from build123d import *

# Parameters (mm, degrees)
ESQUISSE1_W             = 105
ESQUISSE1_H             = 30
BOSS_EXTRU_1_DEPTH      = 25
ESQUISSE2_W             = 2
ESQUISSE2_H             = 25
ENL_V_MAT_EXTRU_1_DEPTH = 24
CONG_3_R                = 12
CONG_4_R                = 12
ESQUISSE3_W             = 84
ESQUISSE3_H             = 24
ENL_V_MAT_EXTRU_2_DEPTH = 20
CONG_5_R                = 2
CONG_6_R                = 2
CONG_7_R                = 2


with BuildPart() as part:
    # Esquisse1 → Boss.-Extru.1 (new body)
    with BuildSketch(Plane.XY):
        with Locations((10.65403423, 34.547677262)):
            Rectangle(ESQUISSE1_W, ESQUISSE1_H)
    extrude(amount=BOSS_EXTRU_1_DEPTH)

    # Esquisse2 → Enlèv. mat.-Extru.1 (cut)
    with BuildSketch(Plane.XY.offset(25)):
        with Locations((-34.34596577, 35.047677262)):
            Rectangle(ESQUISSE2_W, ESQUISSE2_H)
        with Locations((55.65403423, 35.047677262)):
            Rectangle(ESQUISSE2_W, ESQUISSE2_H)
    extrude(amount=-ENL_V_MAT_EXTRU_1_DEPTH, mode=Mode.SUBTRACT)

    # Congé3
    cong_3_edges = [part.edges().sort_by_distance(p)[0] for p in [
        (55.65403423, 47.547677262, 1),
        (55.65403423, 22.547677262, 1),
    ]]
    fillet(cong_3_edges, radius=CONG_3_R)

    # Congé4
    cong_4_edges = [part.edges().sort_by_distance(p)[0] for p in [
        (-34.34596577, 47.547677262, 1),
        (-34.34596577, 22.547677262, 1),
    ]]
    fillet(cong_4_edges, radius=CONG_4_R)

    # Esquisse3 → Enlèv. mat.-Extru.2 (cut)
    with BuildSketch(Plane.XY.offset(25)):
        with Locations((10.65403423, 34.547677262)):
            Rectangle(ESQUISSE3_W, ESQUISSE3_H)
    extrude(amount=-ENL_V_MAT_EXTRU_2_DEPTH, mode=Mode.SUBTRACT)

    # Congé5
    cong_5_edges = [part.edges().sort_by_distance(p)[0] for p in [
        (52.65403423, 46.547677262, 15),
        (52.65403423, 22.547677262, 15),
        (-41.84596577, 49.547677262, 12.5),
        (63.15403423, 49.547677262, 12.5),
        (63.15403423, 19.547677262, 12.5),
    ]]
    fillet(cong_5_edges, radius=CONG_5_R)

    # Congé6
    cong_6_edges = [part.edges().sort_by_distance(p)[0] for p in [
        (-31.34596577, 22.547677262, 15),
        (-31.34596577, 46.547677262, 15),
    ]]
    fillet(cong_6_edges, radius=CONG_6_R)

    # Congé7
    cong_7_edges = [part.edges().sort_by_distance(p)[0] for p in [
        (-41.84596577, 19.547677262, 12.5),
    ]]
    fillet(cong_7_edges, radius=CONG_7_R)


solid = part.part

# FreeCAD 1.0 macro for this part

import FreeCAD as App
import Part
import Sketcher
Q = App.Units.Quantity


def edges_at(feature, points):
    """Names of the edges that pass closest to the given points."""
    edges = feature.Shape.Edges
    near = lambda p: min(range(len(edges)), key=lambda i: edges[i].distToShape(Part.Vertex(*p))[0])
    return sorted({f"Edge{near(p) + 1}" for p in points})

doc = App.newDocument("Part")
body = doc.addObject("PartDesign::Body", "Body")

sketch1 = body.newObject("Sketcher::SketchObject", "Sketch")
sketch1.AttachmentSupport = (doc.getObject("XY_Plane"), [""])
sketch1.MapMode = "FlatFace"
sketch1.addGeometry([
    Part.LineSegment(App.Vector(-42, 50, 0), App.Vector(-42, 20, 0)),
    Part.LineSegment(App.Vector(-42, 20, 0), App.Vector(63, 20, 0)),
    Part.LineSegment(App.Vector(63, 20, 0), App.Vector(63, 50, 0)),
    Part.LineSegment(App.Vector(63, 50, 0), App.Vector(-42, 50, 0)),
], False)
sketch1.addConstraint([
    Sketcher.Constraint("Coincident", 0, 2, 1, 1),
    Sketcher.Constraint("Coincident", 1, 2, 2, 1),
    Sketcher.Constraint("Coincident", 2, 2, 3, 1),
    Sketcher.Constraint("Coincident", 3, 2, 0, 1),
    Sketcher.Constraint("Vertical", 0),
    Sketcher.Constraint("Horizontal", 1),
    Sketcher.Constraint("Vertical", 2),
    Sketcher.Constraint("Horizontal", 3),
    Sketcher.Constraint("DistanceX", 1, 1, 1, 2, Q("105 mm")),
    Sketcher.Constraint("DistanceY", 0, 2, 0, 1, Q("30 mm")),
    Sketcher.Constraint("DistanceX", 0, 2, -1, 1, Q("41.845966 mm")),
    Sketcher.Constraint("DistanceY", -1, 1, 0, 2, Q("19.547677 mm")),
])
pad1 = body.newObject("PartDesign::Pad", "Pad")
pad1.Profile = sketch1
pad1.Length = 25

sketch2 = body.newObject("Sketcher::SketchObject", "Sketch001")
sketch2.AttachmentSupport = (doc.getObject("XY_Plane"), [""])
sketch2.MapMode = "FlatFace"
sketch2.AttachmentOffset = App.Placement(App.Vector(0, 0, 25), App.Rotation())
sketch2.addGeometry([
    Part.LineSegment(App.Vector(-35.3, 47.5, 0), App.Vector(-35.3, 22.5, 0)),
    Part.LineSegment(App.Vector(-35.3, 22.5, 0), App.Vector(-33.3, 22.5, 0)),
    Part.LineSegment(App.Vector(-33.3, 22.5, 0), App.Vector(-33.3, 47.5, 0)),
    Part.LineSegment(App.Vector(-33.3, 47.5, 0), App.Vector(-35.3, 47.5, 0)),
    Part.LineSegment(App.Vector(54.7, 47.5, 0), App.Vector(54.7, 22.5, 0)),
    Part.LineSegment(App.Vector(54.7, 22.5, 0), App.Vector(56.7, 22.5, 0)),
    Part.LineSegment(App.Vector(56.7, 22.5, 0), App.Vector(56.7, 47.5, 0)),
    Part.LineSegment(App.Vector(56.7, 47.5, 0), App.Vector(54.7, 47.5, 0)),
], False)
sketch2.addConstraint([
    Sketcher.Constraint("Coincident", 0, 2, 1, 1),
    Sketcher.Constraint("Coincident", 1, 2, 2, 1),
    Sketcher.Constraint("Coincident", 2, 2, 3, 1),
    Sketcher.Constraint("Coincident", 3, 2, 0, 1),
    Sketcher.Constraint("Coincident", 4, 2, 5, 1),
    Sketcher.Constraint("Coincident", 5, 2, 6, 1),
    Sketcher.Constraint("Coincident", 6, 2, 7, 1),
    Sketcher.Constraint("Coincident", 7, 2, 4, 1),
    Sketcher.Constraint("Vertical", 0),
    Sketcher.Constraint("Horizontal", 1),
    Sketcher.Constraint("Vertical", 2),
    Sketcher.Constraint("Horizontal", 3),
    Sketcher.Constraint("Vertical", 4),
    Sketcher.Constraint("Horizontal", 5),
    Sketcher.Constraint("Vertical", 6),
    Sketcher.Constraint("Horizontal", 7),
    Sketcher.Constraint("Horizontal", 1, 2, 4, 2),
    Sketcher.Constraint("Horizontal", 3, 2, 6, 2),
    Sketcher.Constraint("Equal", 3, 5),
    Sketcher.Constraint("DistanceX", 1, 1, 1, 2, Q("2 mm")),
    Sketcher.Constraint("DistanceY", 0, 2, 0, 1, Q("25 mm")),
    Sketcher.Constraint("DistanceX", 1, 2, 4, 2, Q("88 mm")),
    Sketcher.Constraint("DistanceX", 0, 2, -1, 1, Q("35.345966 mm")),
    Sketcher.Constraint("DistanceY", -1, 1, 0, 2, Q("22.547677 mm")),
])
pocket1 = body.newObject("PartDesign::Pocket", "Pocket")
pocket1.Profile = sketch2
pocket1.Length = 24
doc.recompute()

fillet = body.newObject("PartDesign::Fillet", "Fillet")
fillet.Base = (pocket1, edges_at(pocket1, [(55.654, 47.548, 1), (55.654, 22.548, 1)]))
fillet.Radius = 12
doc.recompute()

fillet2 = body.newObject("PartDesign::Fillet", "Fillet001")
fillet2.Base = (fillet, edges_at(fillet, [(-34.346, 47.548, 1), (-34.346, 22.548, 1)]))
fillet2.Radius = 12

sketch3 = body.newObject("Sketcher::SketchObject", "Sketch002")
sketch3.AttachmentSupport = (doc.getObject("XY_Plane"), [""])
sketch3.MapMode = "FlatFace"
sketch3.AttachmentOffset = App.Placement(App.Vector(0, 0, 25), App.Rotation())
sketch3.addGeometry([
    Part.LineSegment(App.Vector(-31, 47, 0), App.Vector(-31, 23, 0)),
    Part.LineSegment(App.Vector(-31, 23, 0), App.Vector(53, 23, 0)),
    Part.LineSegment(App.Vector(53, 23, 0), App.Vector(53, 47, 0)),
    Part.LineSegment(App.Vector(53, 47, 0), App.Vector(-31, 47, 0)),
], False)
sketch3.addConstraint([
    Sketcher.Constraint("Coincident", 0, 2, 1, 1),
    Sketcher.Constraint("Coincident", 1, 2, 2, 1),
    Sketcher.Constraint("Coincident", 2, 2, 3, 1),
    Sketcher.Constraint("Coincident", 3, 2, 0, 1),
    Sketcher.Constraint("Vertical", 0),
    Sketcher.Constraint("Horizontal", 1),
    Sketcher.Constraint("Vertical", 2),
    Sketcher.Constraint("Horizontal", 3),
    Sketcher.Constraint("DistanceX", 1, 1, 1, 2, Q("84 mm")),
    Sketcher.Constraint("DistanceY", 0, 2, 0, 1, Q("24 mm")),
    Sketcher.Constraint("DistanceX", 0, 2, -1, 1, Q("31.345966 mm")),
    Sketcher.Constraint("DistanceY", -1, 1, 0, 2, Q("22.547677 mm")),
])
pocket2 = body.newObject("PartDesign::Pocket", "Pocket001")
pocket2.Profile = sketch3
pocket2.Length = 20
doc.recompute()

fillet3 = body.newObject("PartDesign::Fillet", "Fillet002")
fillet3.Base = (pocket2, edges_at(pocket2, [
    (52.654, 46.548, 15),
    (52.654, 22.548, 15),
    (-41.846, 49.548, 12.5),
    (63.154, 49.548, 12.5),
    (63.154, 19.548, 12.5),
]))
fillet3.Radius = 2
doc.recompute()

fillet4 = body.newObject("PartDesign::Fillet", "Fillet003")
fillet4.Base = (fillet3, edges_at(fillet3, [(-31.346, 22.548, 15), (-31.346, 46.548, 15)]))
fillet4.Radius = 2
doc.recompute()

fillet5 = body.newObject("PartDesign::Fillet", "Fillet004")
fillet5.Base = (fillet4, edges_at(fillet4, [(-41.846, 19.548, 12.5)]))
fillet5.Radius = 2

doc.recompute()
